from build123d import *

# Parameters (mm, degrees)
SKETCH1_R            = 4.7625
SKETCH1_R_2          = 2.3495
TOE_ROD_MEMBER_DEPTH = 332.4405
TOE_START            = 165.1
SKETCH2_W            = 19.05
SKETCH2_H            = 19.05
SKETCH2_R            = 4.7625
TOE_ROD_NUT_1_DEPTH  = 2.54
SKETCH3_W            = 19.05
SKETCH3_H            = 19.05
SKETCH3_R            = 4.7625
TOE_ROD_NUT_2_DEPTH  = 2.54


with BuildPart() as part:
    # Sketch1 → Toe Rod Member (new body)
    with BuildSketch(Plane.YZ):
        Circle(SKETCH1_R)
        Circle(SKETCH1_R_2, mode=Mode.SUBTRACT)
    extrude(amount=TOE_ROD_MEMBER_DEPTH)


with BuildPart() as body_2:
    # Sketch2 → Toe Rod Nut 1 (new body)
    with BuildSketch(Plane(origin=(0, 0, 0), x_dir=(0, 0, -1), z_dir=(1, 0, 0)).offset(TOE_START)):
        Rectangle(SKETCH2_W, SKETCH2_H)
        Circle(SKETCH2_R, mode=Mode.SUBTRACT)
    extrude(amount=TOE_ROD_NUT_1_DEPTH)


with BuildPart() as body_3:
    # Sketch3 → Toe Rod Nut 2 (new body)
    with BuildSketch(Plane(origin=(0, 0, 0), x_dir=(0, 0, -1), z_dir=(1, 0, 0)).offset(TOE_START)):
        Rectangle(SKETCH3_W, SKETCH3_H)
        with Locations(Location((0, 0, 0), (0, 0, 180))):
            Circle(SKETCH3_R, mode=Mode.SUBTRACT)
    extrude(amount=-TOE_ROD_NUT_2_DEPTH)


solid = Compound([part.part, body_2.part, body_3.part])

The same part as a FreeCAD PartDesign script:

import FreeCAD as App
import Part
import Sketcher
from FreeCAD import Vector
Q = App.Units.Quantity


def add_polygon(sketch, points):
    """Adds a closed chain of lines whose ends are joined by coincident constraints."""
    first, n = sketch.GeometryCount, len(points)
    for a, b in zip(points, points[1:] + points[:1]):
        sketch.addGeometry(Part.LineSegment(App.Vector(*a, 0), App.Vector(*b, 0)), False)
    for i in range(n):
        sketch.addConstraint(Sketcher.Constraint("Coincident", first + i, 2, first + (i + 1) % n, 1))

doc = App.newDocument("Part")
body = doc.addObject("PartDesign::Body", "Body")

sketch1 = body.newObject("Sketcher::SketchObject", "Sketch")
sketch1.AttachmentSupport = (doc.getObject("YZ_Plane"), [""])
sketch1.MapMode = "FlatFace"
sketch1.addGeometry([
    Part.Circle(Vector(0, 0, 0), Vector(0, 0, 1), 4.8),
    Part.Circle(Vector(0, 0, 0), Vector(0, 0, 1), 2.3),
], False)
sketch1.addConstraint([
    Sketcher.Constraint("Coincident", 0, 3, -1, 1),
    Sketcher.Constraint("Coincident", 1, 3, -1, 1),
    Sketcher.Constraint("Diameter", 0, Q("0.375 in")),
    Sketcher.Constraint("Diameter", 1, Q("0.185 in")),
])
pad1 = body.newObject("PartDesign::Pad", "Pad")
pad1.Profile = sketch1
pad1.Length = 332.4405
body2 = doc.addObject("PartDesign::Body", "Body001")

sketch2 = body2.newObject("Sketcher::SketchObject", "Sketch001")
sketch2.AttachmentSupport = (doc.getObject("YZ_Plane001"), [""])
sketch2.MapMode = "FlatFace"
sketch2.AttachmentOffset = App.Placement(Vector(0, 0, 6.5 * 25.4), App.Rotation())
add_polygon(sketch2, [(9.5, 9.5), (-9.5, 9.5), (-9.5, -9.5), (9.5, -9.5)])
sketch2.addGeometry(Part.Circle(Vector(0, 0, 0), Vector(0, 0, 1), 4.8), False)
sketch2.addConstraint([
    Sketcher.Constraint("Horizontal", 0),
    Sketcher.Constraint("Vertical", 1),
    Sketcher.Constraint("Horizontal", 2),
    Sketcher.Constraint("Vertical", 3),
    Sketcher.Constraint("Coincident", 4, 3, -1, 1),
    Sketcher.Constraint("Symmetric", 0, 2, 2, 2, -1, 1),
    Sketcher.Constraint("Equal", 2, 1),
    Sketcher.Constraint("Diameter", 4, Q("0.375 in")),
    Sketcher.Constraint("DistanceX", 0, 2, 0, 1, Q("0.75 in")),
])
pad2 = body2.newObject("PartDesign::Pad", "Pad001")
pad2.Profile = sketch2
pad2.Length = Q("0.1 in")
body3 = doc.addObject("PartDesign::Body", "Body002")

sketch3 = body3.newObject("Sketcher::SketchObject", "Sketch002")
sketch3.AttachmentSupport = (doc.getObject("YZ_Plane002"), [""])
sketch3.MapMode = "FlatFace"
sketch3.AttachmentOffset = App.Placement(Vector(0, 0, 6.5 * 25.4), App.Rotation())
add_polygon(sketch3, [(9.5, 9.5), (-9.5, 9.5), (-9.5, -9.5), (9.5, -9.5)])
sketch3.addGeometry(Part.Circle(Vector(0, 0, 0), Vector(0, 0, 1), 4.8), False)
sketch3.addConstraint([
    Sketcher.Constraint("Horizontal", 0),
    Sketcher.Constraint("Vertical", 1),
    Sketcher.Constraint("Horizontal", 2),
    Sketcher.Constraint("Vertical", 3),
    Sketcher.Constraint("Coincident", 4, 3, -1, 1),
    Sketcher.Constraint("Symmetric", 0, 2, 2, 2, -1, 1),
    Sketcher.Constraint("Equal", 2, 1),
    Sketcher.Constraint("Diameter", 4, Q("0.375 in")),
    Sketcher.Constraint("DistanceX", 0, 2, 0, 1, Q("0.75 in")),
])
pad3 = body3.newObject("PartDesign::Pad", "Pad002")
pad3.Profile = sketch3
pad3.Length = Q("0.1 in")
pad3.Reversed = True

doc.recompute()
